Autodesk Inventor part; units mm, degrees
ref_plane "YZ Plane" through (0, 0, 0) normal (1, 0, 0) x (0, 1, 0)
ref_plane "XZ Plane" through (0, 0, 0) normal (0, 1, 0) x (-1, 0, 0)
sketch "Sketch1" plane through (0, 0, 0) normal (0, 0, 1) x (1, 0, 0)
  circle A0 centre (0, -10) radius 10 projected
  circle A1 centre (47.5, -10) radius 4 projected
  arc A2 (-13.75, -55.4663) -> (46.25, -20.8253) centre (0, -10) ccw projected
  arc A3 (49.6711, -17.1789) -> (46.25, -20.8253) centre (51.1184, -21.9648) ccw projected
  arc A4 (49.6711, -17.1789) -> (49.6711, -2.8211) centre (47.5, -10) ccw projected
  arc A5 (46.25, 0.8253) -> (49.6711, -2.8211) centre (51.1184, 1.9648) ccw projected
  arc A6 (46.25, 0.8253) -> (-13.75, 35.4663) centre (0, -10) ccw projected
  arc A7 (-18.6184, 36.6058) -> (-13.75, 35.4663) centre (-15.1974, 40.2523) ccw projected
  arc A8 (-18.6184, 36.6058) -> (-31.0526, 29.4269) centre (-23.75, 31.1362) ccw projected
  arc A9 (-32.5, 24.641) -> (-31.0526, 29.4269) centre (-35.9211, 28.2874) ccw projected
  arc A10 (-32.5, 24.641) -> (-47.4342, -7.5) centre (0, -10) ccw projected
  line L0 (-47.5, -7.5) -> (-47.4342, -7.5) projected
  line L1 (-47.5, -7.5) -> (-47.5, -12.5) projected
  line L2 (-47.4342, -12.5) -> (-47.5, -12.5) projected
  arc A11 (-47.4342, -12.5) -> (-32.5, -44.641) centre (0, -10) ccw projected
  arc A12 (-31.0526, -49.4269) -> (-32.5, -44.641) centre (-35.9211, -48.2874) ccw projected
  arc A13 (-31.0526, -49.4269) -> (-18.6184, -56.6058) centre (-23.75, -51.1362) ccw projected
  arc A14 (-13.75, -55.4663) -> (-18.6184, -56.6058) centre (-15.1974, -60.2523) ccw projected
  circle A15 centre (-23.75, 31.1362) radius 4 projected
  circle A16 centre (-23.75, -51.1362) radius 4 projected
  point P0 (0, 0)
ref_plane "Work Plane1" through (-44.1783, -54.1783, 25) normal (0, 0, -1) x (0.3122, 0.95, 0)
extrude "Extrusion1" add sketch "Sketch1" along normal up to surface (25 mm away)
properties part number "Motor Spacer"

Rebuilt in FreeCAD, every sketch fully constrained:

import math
import FreeCAD as App
import Part
import Sketcher

V = App.Vector
Q = App.Units.Quantity

doc = App.newDocument("Part")
body = doc.addObject("PartDesign::Body", "Body")

# Sketch on XY plane
sketch1 = doc.addObject("Sketcher::SketchObject", "Sketch")
body.addObject(sketch1)
sketch1.AttachmentSupport = (doc.XY_Plane, [""])
sketch1.MapMode = "FlatFace"
sketch1.addGeometry(Part.ArcOfCircle(Part.Circle(V(-15.2, -60.25, 0), V(0, 0, 1), 5), math.radians(73), math.radians(133)), False)
sketch1.addGeometry(Part.ArcOfCircle(Part.Circle(V(0, -10, 0), V(0, 0, 1), 47.5), math.radians(-107), math.radians(-13)), False)
sketch1.addGeometry(Part.ArcOfCircle(Part.Circle(V(51.12, -21.96, 0), V(0, 0, 1), 5), math.radians(107), math.radians(167)), False)
sketch1.addGeometry(Part.ArcOfCircle(Part.Circle(V(47.5, -10, 0), V(0, 0, 1), 7.5), math.radians(-73), math.radians(73)), False)
sketch1.addGeometry(Part.ArcOfCircle(Part.Circle(V(51.12, 1.96, 0), V(0, 0, 1), 5), math.radians(-167), math.radians(-107)), False)
sketch1.addGeometry(Part.ArcOfCircle(Part.Circle(V(0, -10, 0), V(0, 0, 1), 47.5), math.radians(13), math.radians(107)), False)
sketch1.addGeometry(Part.ArcOfCircle(Part.Circle(V(-15.2, 40.25, 0), V(0, 0, 1), 5), math.radians(-133), math.radians(-73)), False)
sketch1.addGeometry(Part.ArcOfCircle(Part.Circle(V(-23.75, 31.14, 0), V(0, 0, 1), 7.5), math.radians(47), math.radians(193)), False)
sketch1.addGeometry(Part.ArcOfCircle(Part.Circle(V(-35.92, 28.29, 0), V(0, 0, 1), 5), math.radians(-47), math.radians(13)), False)
sketch1.addGeometry(Part.ArcOfCircle(Part.Circle(V(0, -10, 0), V(0, 0, 1), 47.5), math.radians(133), math.radians(177)), False)
sketch1.addGeometry(Part.LineSegment(V(-47.43, -7.5, 0), V(-47.5, -7.5, 0)), False)
sketch1.addGeometry(Part.LineSegment(V(-47.5, -7.5, 0), V(-47.5, -12.5, 0)), False)
sketch1.addGeometry(Part.LineSegment(V(-47.5, -12.5, 0), V(-47.43, -12.5, 0)), False)
sketch1.addGeometry(Part.ArcOfCircle(Part.Circle(V(0, -10, 0), V(0, 0, 1), 47.5), math.radians(-177), math.radians(-133)), False)
sketch1.addGeometry(Part.ArcOfCircle(Part.Circle(V(-35.92, -48.29, 0), V(0, 0, 1), 5), math.radians(-13), math.radians(47)), False)
sketch1.addGeometry(Part.ArcOfCircle(Part.Circle(V(-23.75, -51.14, 0), V(0, 0, 1), 7.5), math.radians(167), math.radians(313)), False)
sketch1.addGeometry(Part.Circle(V(-23.75, -51.14, 0), V(0, 0, 1), 4), False)
sketch1.addGeometry(Part.Circle(V(0, -10, 0), V(0, 0, 1), 10), False)
sketch1.addGeometry(Part.Circle(V(47.5, -10, 0), V(0, 0, 1), 4), False)
sketch1.addGeometry(Part.Circle(V(-23.75, 31.14, 0), V(0, 0, 1), 4), False)
sketch1.addConstraint(Sketcher.Constraint("Tangent", 0, 1, 1, 1))
sketch1.addConstraint(Sketcher.Constraint("Tangent", 1, 2, 2, 2))
sketch1.addConstraint(Sketcher.Constraint("Tangent", 2, 1, 3, 1))
sketch1.addConstraint(Sketcher.Constraint("Tangent", 3, 2, 4, 2))
sketch1.addConstraint(Sketcher.Constraint("Tangent", 4, 1, 5, 1))
sketch1.addConstraint(Sketcher.Constraint("Tangent", 5, 2, 6, 2))
sketch1.addConstraint(Sketcher.Constraint("Tangent", 6, 1, 7, 1))
sketch1.addConstraint(Sketcher.Constraint("Tangent", 7, 2, 8, 2))
sketch1.addConstraint(Sketcher.Constraint("Tangent", 8, 1, 9, 1))
sketch1.addConstraint(Sketcher.Constraint("Coincident", 9, 2, 10, 1))
sketch1.addConstraint(Sketcher.Constraint("Coincident", 10, 2, 11, 1))
sketch1.addConstraint(Sketcher.Constraint("Coincident", 11, 2, 12, 1))
sketch1.addConstraint(Sketcher.Constraint("Coincident", 12, 2, 13, 1))
sketch1.addConstraint(Sketcher.Constraint("Tangent", 13, 2, 14, 2))
sketch1.addConstraint(Sketcher.Constraint("Tangent", 14, 1, 15, 1))
sketch1.addConstraint(Sketcher.Constraint("Tangent", 15, 2, 0, 2))
sketch1.addConstraint(Sketcher.Constraint("Horizontal", 10))
sketch1.addConstraint(Sketcher.Constraint("Vertical", 11))
sketch1.addConstraint(Sketcher.Constraint("Horizontal", 12))
sketch1.addConstraint(Sketcher.Constraint("Coincident", 5, 3, 1, 3))
sketch1.addConstraint(Sketcher.Constraint("Coincident", 9, 3, 1, 3))
sketch1.addConstraint(Sketcher.Constraint("Coincident", 13, 3, 1, 3))
sketch1.addConstraint(Sketcher.Constraint("Coincident", 16, 3, 15, 3))
sketch1.addConstraint(Sketcher.Constraint("Coincident", 17, 3, 1, 3))
sketch1.addConstraint(Sketcher.Constraint("Coincident", 18, 3, 3, 3))
sketch1.addConstraint(Sketcher.Constraint("Coincident", 19, 3, 7, 3))
sketch1.addConstraint(Sketcher.Constraint("Equal", 0, 2))
sketch1.addConstraint(Sketcher.Constraint("Equal", 2, 4))
sketch1.addConstraint(Sketcher.Constraint("Equal", 1, 5))
sketch1.addConstraint(Sketcher.Constraint("Equal", 4, 6))
sketch1.addConstraint(Sketcher.Constraint("Equal", 3, 7))
sketch1.addConstraint(Sketcher.Constraint("Equal", 6, 8))
sketch1.addConstraint(Sketcher.Constraint("Equal", 5, 9))
sketch1.addConstraint(Sketcher.Constraint("Equal", 9, 13))
sketch1.addConstraint(Sketcher.Constraint("Equal", 8, 14))
sketch1.addConstraint(Sketcher.Constraint("Equal", 7, 15))
sketch1.addConstraint(Sketcher.Constraint("Equal", 16, 18))
sketch1.addConstraint(Sketcher.Constraint("Equal", 18, 19))
sketch1.addConstraint(Sketcher.Constraint("PointOnObject", 1, 3, -2))
sketch1.addConstraint(Sketcher.Constraint("Horizontal", 1, 3, 3, 3))
sketch1.addConstraint(Sketcher.Constraint("Vertical", 0, 3, 6, 3))
sketch1.addConstraint(Sketcher.Constraint("Vertical", 8, 3, 14, 3))
sketch1.addConstraint(Sketcher.Constraint("Vertical", 9, 2, 12, 2))
sketch1.addConstraint(Sketcher.Constraint("Diameter", 16, Q("8 mm")))
sketch1.addConstraint(Sketcher.Constraint("Diameter", 17, Q("20 mm")))
sketch1.addConstraint(Sketcher.Constraint("Radius", 0, Q("5 mm")))
sketch1.addConstraint(Sketcher.Constraint("Radius", 1, Q("47.5 mm")))
sketch1.addConstraint(Sketcher.Constraint("Radius", 3, Q("7.5 mm")))
sketch1.addConstraint(Sketcher.Constraint("DistanceY", 11, 2, 11, 1, Q("5 mm")))
sketch1.addConstraint(Sketcher.Constraint("DistanceY", 1, 3, -1, 1, Q("10 mm")))
sketch1.addConstraint(Sketcher.Constraint("DistanceX", 15, 3, 0, 1, Q("10 mm")))
sketch1.addConstraint(Sketcher.Constraint("DistanceX", 10, 2, 8, 1, Q("15 mm")))
sketch1.addConstraint(Sketcher.Constraint("DistanceX", -1, 1, 3, 3, Q("47.5 mm")))
sketch1.addConstraint(Sketcher.Constraint("DistanceX", 8, 1, -1, 1, Q("32.5 mm")))
pad1 = doc.addObject("PartDesign::Pad", "Pad")
body.addObject(pad1)
pad1.Profile = sketch1
pad1.Length = 25

doc.recompute()
